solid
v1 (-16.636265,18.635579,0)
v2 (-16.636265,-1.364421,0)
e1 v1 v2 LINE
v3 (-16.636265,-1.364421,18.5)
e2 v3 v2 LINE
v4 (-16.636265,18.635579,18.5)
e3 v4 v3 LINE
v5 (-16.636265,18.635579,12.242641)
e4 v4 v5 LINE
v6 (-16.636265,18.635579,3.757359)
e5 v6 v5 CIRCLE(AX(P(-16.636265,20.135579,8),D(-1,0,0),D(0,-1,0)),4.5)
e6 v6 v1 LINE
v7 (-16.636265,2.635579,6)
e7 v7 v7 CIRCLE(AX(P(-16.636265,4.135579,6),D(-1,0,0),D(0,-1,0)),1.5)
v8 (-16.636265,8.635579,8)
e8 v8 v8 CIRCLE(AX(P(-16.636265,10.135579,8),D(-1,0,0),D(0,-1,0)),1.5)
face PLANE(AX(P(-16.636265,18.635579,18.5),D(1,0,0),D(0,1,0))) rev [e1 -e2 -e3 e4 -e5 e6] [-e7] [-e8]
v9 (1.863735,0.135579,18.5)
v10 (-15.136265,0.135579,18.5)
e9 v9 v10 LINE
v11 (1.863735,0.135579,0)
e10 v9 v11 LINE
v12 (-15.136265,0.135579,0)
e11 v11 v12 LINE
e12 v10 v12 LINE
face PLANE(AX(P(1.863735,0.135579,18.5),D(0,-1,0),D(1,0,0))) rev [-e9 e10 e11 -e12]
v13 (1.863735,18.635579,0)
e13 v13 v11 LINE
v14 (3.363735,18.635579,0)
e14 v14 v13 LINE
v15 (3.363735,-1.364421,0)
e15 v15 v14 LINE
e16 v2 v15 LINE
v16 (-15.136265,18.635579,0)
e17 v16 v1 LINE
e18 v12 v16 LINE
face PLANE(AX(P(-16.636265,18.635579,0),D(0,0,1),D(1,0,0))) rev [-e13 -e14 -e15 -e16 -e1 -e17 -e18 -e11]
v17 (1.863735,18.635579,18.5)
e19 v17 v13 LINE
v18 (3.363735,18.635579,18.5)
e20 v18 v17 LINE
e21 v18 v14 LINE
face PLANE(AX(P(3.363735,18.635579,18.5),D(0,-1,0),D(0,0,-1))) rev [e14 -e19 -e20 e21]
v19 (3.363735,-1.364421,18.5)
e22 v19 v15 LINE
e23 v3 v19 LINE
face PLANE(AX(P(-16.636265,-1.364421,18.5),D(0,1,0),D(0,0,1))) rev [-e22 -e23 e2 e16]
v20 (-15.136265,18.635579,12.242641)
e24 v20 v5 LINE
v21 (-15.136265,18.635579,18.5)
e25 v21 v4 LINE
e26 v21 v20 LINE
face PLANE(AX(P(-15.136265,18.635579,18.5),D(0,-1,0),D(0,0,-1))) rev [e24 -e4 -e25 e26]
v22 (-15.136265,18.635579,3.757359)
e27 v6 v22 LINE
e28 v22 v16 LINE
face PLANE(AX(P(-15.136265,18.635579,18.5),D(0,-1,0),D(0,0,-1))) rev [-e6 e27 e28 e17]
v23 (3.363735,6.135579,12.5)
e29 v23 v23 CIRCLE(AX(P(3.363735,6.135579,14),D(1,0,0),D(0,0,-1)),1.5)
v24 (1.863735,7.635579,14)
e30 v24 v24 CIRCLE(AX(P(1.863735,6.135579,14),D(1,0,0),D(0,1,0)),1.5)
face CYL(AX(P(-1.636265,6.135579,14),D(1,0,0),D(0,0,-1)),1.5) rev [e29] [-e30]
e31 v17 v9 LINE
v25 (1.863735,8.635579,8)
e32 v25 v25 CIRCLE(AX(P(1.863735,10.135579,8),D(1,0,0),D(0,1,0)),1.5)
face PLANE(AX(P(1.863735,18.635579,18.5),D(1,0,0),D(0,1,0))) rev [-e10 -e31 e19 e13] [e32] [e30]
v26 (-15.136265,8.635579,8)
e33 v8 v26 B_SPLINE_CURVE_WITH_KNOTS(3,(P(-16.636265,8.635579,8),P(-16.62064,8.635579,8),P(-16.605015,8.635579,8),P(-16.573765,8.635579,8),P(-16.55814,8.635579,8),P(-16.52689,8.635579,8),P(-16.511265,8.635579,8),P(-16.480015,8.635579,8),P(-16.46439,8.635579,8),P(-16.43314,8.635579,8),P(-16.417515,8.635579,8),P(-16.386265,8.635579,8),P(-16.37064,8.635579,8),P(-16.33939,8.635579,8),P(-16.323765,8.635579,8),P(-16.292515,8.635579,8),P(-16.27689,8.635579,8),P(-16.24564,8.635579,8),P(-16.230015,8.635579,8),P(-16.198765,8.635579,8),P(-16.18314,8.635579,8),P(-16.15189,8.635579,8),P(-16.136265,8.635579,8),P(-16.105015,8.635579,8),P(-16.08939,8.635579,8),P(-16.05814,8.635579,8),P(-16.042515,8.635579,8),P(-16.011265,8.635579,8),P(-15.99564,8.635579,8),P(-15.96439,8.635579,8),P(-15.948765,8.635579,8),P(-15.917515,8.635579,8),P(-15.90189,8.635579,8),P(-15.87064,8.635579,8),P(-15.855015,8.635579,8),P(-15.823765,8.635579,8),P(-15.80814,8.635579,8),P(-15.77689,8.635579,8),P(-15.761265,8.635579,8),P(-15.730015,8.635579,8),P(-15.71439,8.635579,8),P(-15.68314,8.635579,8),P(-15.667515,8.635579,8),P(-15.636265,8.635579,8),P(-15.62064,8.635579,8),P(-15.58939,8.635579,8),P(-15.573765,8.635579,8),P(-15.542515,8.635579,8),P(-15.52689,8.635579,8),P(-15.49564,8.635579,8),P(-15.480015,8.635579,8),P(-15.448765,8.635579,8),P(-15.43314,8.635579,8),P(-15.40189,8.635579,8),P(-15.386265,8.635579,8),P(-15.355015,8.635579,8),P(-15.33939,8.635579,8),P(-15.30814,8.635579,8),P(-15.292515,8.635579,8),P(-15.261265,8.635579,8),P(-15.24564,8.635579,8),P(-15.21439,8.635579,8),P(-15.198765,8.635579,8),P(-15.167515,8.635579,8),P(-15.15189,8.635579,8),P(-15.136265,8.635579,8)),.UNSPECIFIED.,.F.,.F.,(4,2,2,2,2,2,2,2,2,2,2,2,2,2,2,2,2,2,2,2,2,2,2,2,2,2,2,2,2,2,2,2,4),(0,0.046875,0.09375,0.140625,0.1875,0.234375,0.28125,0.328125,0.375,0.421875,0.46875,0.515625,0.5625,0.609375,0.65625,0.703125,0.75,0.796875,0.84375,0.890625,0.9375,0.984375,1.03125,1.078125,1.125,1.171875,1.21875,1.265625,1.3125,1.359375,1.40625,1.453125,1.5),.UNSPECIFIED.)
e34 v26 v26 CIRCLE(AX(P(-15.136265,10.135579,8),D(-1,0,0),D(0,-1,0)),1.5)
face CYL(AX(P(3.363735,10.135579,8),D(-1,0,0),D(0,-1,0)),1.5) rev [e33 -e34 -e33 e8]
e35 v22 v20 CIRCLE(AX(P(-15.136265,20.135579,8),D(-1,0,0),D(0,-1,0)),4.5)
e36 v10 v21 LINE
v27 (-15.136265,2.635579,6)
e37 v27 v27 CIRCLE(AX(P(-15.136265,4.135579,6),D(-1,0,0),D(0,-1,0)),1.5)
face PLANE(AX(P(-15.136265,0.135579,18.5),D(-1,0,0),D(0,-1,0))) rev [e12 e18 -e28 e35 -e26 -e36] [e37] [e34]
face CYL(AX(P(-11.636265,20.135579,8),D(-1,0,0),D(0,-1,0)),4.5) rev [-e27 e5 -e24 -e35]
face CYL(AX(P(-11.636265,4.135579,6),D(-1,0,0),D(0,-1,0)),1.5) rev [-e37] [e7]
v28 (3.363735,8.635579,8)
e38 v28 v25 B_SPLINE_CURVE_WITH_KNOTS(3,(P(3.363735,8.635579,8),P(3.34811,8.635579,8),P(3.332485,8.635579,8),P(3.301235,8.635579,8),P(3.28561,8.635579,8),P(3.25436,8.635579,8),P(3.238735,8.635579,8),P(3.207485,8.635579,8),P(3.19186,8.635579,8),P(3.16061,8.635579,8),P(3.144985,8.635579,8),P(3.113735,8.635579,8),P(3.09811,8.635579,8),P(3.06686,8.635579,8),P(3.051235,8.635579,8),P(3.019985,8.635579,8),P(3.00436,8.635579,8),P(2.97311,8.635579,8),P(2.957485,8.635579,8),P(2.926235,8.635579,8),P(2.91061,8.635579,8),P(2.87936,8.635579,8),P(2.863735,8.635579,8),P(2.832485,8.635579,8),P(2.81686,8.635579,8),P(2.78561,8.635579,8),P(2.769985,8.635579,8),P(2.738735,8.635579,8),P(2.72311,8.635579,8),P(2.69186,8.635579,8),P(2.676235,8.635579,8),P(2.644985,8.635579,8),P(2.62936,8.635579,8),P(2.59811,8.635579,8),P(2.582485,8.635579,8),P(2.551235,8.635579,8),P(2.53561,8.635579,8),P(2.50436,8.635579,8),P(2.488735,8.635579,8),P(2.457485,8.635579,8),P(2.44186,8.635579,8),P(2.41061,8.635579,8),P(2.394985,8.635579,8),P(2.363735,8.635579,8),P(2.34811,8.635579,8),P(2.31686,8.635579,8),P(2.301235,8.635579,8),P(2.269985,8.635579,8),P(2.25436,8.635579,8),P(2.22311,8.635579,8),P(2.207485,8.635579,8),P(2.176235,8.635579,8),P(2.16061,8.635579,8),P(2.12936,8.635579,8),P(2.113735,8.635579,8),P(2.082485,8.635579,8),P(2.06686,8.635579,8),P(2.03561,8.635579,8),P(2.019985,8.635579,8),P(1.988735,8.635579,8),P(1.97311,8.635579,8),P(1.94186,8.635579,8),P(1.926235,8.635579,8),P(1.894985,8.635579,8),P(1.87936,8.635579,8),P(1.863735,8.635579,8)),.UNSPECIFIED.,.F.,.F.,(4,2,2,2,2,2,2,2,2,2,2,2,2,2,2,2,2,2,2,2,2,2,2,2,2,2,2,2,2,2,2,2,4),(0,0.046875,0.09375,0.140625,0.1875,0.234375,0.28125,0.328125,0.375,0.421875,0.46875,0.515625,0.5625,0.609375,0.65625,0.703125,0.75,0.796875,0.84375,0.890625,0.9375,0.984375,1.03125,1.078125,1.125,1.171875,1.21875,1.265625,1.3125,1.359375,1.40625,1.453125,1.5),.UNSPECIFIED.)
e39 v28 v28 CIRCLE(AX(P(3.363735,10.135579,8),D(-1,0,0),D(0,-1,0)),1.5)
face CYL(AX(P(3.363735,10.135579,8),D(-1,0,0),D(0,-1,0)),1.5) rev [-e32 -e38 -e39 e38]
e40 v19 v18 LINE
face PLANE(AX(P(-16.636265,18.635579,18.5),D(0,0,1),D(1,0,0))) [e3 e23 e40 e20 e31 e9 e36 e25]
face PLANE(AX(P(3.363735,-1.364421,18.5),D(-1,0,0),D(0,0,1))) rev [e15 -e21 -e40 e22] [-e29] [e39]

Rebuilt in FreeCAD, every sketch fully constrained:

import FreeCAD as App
import Part
import Sketcher

V = App.Vector

doc = App.newDocument("Part")
body = doc.addObject("PartDesign::Body", "Body")

sketch1 = body.newObject("Sketcher::SketchObject", "Sketch")
sketch1.AttachmentSupport = (doc.getObject("XY_Plane"), [""])
sketch1.MapMode = "FlatFace"
sketch1.addGeometry(Part.LineSegment(V(-16.6, 18.6, 0), V(-16.6, -1.4, 0)), False)
sketch1.addGeometry(Part.LineSegment(V(-16.6, -1.4, 0), V(3.4, -1.4, 0)), False)
sketch1.addGeometry(Part.LineSegment(V(3.4, -1.4, 0), V(3.4, 18.6, 0)), False)
sketch1.addGeometry(Part.LineSegment(V(3.4, 18.6, 0), V(1.9, 18.6, 0)), False)
sketch1.addGeometry(Part.LineSegment(V(1.9, 18.6, 0), V(1.9, 0.1, 0)), False)
sketch1.addGeometry(Part.LineSegment(V(1.9, 0.1, 0), V(-15.1, 0.1, 0)), False)
sketch1.addGeometry(Part.LineSegment(V(-15.1, 0.1, 0), V(-15.1, 18.6, 0)), False)
sketch1.addGeometry(Part.LineSegment(V(-15.1, 18.6, 0), V(-16.6, 18.6, 0)), False)
sketch1.addConstraint(Sketcher.Constraint("Coincident", 0, 2, 1, 1))
sketch1.addConstraint(Sketcher.Constraint("Coincident", 1, 2, 2, 1))
sketch1.addConstraint(Sketcher.Constraint("Coincident", 2, 2, 3, 1))
sketch1.addConstraint(Sketcher.Constraint("Coincident", 3, 2, 4, 1))
sketch1.addConstraint(Sketcher.Constraint("Coincident", 4, 2, 5, 1))
sketch1.addConstraint(Sketcher.Constraint("Coincident", 5, 2, 6, 1))
sketch1.addConstraint(Sketcher.Constraint("Coincident", 6, 2, 7, 1))
sketch1.addConstraint(Sketcher.Constraint("Coincident", 7, 2, 0, 1))
sketch1.addConstraint(Sketcher.Constraint("Vertical", 0))
sketch1.addConstraint(Sketcher.Constraint("Horizontal", 1))
sketch1.addConstraint(Sketcher.Constraint("Vertical", 2))
sketch1.addConstraint(Sketcher.Constraint("Horizontal", 3))
sketch1.addConstraint(Sketcher.Constraint("Vertical", 4))
sketch1.addConstraint(Sketcher.Constraint("Horizontal", 5))
sketch1.addConstraint(Sketcher.Constraint("Vertical", 6))
sketch1.addConstraint(Sketcher.Constraint("Horizontal", 7))
sketch1.addConstraint(Sketcher.Constraint("Horizontal", 3, 2, 6, 2))
sketch1.addConstraint(Sketcher.Constraint("Equal", 3, 7))
sketch1.addConstraint(Sketcher.Constraint("Equal", 1, 0))
sketch1.addConstraint(Sketcher.Constraint("DistanceX", 1, 1, 1, 2, 20.0))
sketch1.addConstraint(Sketcher.Constraint("DistanceX", 5, 2, 5, 1, 17.0))
sketch1.addConstraint(Sketcher.Constraint("DistanceY", 4, 2, 4, 1, 18.5))
sketch1.addConstraint(Sketcher.Constraint("DistanceY", 0, 2, -1, 1, 1.364421))
sketch1.addConstraint(Sketcher.Constraint("DistanceX", 0, 2, -1, 1, 16.636265))
pad1 = body.newObject("PartDesign::Pad", "Pad")
pad1.Profile = sketch1
pad1.Length = 18.5

sketch2 = body.newObject("Sketcher::SketchObject", "Sketch001")
sketch2.AttachmentSupport = (doc.getObject("YZ_Plane"), [""])
sketch2.MapMode = "FlatFace"
sketch2.AttachmentOffset = App.Placement(V(0, 0, 3.363735), App.Rotation())
sketch2.addGeometry(Part.Circle(V(6.1, 14, 0), V(0, 0, 1), 1.5), False)
sketch2.addConstraint(Sketcher.Constraint("Diameter", 0, 3.0))
sketch2.addConstraint(Sketcher.Constraint("DistanceY", -1, 1, 0, 3, 14.0))
sketch2.addConstraint(Sketcher.Constraint("DistanceX", -1, 1, 0, 3, 6.135579))
pocket1 = body.newObject("PartDesign::Pocket", "Pocket")
pocket1.Profile = sketch2
pocket1.Length = 5

sketch3 = body.newObject("Sketcher::SketchObject", "Sketch002")
sketch3.AttachmentSupport = (doc.getObject("YZ_Plane"), [""])
sketch3.MapMode = "FlatFace"
sketch3.AttachmentOffset = App.Placement(V(0, 0, -16.636265), App.Rotation())
sketch3.addGeometry(Part.Circle(V(20.1, 8, 0), V(0, 0, 1), 4.5), False)
sketch3.addGeometry(Part.Circle(V(4.1, 6, 0), V(0, 0, 1), 1.5), False)
sketch3.addConstraint(Sketcher.Constraint("Diameter", 0, 9.0))
sketch3.addConstraint(Sketcher.Constraint("Diameter", 1, 3.0))
sketch3.addConstraint(Sketcher.Constraint("DistanceY", -1, 1, 0, 3, 8.0))
sketch3.addConstraint(Sketcher.Constraint("DistanceY", -1, 1, 1, 3, 6.0))
sketch3.addConstraint(Sketcher.Constraint("DistanceX", 1, 3, 0, 3, 16.0))
sketch3.addConstraint(Sketcher.Constraint("DistanceX", -1, 1, 0, 3, 20.135579))
pocket2 = body.newObject("PartDesign::Pocket", "Pocket001")
pocket2.Profile = sketch3
pocket2.Length = 5
pocket2.Reversed = True

sketch4 = body.newObject("Sketcher::SketchObject", "Sketch003")
sketch4.AttachmentSupport = (doc.getObject("YZ_Plane"), [""])
sketch4.MapMode = "FlatFace"
sketch4.AttachmentOffset = App.Placement(V(0, 0, -16.636265), App.Rotation())
sketch4.addGeometry(Part.Circle(V(10.1, 8, 0), V(0, 0, 1), 1.5), False)
sketch4.addConstraint(Sketcher.Constraint("Diameter", 0, 3.0))
sketch4.addConstraint(Sketcher.Constraint("DistanceY", -1, 1, 0, 3, 8.0))
sketch4.addConstraint(Sketcher.Constraint("DistanceX", -1, 1, 0, 3, 10.135579))
pocket3 = body.newObject("PartDesign::Pocket", "Pocket002")
pocket3.Profile = sketch4
pocket3.Type = "ThroughAll"
pocket3.Reversed = True

doc.recompute()
